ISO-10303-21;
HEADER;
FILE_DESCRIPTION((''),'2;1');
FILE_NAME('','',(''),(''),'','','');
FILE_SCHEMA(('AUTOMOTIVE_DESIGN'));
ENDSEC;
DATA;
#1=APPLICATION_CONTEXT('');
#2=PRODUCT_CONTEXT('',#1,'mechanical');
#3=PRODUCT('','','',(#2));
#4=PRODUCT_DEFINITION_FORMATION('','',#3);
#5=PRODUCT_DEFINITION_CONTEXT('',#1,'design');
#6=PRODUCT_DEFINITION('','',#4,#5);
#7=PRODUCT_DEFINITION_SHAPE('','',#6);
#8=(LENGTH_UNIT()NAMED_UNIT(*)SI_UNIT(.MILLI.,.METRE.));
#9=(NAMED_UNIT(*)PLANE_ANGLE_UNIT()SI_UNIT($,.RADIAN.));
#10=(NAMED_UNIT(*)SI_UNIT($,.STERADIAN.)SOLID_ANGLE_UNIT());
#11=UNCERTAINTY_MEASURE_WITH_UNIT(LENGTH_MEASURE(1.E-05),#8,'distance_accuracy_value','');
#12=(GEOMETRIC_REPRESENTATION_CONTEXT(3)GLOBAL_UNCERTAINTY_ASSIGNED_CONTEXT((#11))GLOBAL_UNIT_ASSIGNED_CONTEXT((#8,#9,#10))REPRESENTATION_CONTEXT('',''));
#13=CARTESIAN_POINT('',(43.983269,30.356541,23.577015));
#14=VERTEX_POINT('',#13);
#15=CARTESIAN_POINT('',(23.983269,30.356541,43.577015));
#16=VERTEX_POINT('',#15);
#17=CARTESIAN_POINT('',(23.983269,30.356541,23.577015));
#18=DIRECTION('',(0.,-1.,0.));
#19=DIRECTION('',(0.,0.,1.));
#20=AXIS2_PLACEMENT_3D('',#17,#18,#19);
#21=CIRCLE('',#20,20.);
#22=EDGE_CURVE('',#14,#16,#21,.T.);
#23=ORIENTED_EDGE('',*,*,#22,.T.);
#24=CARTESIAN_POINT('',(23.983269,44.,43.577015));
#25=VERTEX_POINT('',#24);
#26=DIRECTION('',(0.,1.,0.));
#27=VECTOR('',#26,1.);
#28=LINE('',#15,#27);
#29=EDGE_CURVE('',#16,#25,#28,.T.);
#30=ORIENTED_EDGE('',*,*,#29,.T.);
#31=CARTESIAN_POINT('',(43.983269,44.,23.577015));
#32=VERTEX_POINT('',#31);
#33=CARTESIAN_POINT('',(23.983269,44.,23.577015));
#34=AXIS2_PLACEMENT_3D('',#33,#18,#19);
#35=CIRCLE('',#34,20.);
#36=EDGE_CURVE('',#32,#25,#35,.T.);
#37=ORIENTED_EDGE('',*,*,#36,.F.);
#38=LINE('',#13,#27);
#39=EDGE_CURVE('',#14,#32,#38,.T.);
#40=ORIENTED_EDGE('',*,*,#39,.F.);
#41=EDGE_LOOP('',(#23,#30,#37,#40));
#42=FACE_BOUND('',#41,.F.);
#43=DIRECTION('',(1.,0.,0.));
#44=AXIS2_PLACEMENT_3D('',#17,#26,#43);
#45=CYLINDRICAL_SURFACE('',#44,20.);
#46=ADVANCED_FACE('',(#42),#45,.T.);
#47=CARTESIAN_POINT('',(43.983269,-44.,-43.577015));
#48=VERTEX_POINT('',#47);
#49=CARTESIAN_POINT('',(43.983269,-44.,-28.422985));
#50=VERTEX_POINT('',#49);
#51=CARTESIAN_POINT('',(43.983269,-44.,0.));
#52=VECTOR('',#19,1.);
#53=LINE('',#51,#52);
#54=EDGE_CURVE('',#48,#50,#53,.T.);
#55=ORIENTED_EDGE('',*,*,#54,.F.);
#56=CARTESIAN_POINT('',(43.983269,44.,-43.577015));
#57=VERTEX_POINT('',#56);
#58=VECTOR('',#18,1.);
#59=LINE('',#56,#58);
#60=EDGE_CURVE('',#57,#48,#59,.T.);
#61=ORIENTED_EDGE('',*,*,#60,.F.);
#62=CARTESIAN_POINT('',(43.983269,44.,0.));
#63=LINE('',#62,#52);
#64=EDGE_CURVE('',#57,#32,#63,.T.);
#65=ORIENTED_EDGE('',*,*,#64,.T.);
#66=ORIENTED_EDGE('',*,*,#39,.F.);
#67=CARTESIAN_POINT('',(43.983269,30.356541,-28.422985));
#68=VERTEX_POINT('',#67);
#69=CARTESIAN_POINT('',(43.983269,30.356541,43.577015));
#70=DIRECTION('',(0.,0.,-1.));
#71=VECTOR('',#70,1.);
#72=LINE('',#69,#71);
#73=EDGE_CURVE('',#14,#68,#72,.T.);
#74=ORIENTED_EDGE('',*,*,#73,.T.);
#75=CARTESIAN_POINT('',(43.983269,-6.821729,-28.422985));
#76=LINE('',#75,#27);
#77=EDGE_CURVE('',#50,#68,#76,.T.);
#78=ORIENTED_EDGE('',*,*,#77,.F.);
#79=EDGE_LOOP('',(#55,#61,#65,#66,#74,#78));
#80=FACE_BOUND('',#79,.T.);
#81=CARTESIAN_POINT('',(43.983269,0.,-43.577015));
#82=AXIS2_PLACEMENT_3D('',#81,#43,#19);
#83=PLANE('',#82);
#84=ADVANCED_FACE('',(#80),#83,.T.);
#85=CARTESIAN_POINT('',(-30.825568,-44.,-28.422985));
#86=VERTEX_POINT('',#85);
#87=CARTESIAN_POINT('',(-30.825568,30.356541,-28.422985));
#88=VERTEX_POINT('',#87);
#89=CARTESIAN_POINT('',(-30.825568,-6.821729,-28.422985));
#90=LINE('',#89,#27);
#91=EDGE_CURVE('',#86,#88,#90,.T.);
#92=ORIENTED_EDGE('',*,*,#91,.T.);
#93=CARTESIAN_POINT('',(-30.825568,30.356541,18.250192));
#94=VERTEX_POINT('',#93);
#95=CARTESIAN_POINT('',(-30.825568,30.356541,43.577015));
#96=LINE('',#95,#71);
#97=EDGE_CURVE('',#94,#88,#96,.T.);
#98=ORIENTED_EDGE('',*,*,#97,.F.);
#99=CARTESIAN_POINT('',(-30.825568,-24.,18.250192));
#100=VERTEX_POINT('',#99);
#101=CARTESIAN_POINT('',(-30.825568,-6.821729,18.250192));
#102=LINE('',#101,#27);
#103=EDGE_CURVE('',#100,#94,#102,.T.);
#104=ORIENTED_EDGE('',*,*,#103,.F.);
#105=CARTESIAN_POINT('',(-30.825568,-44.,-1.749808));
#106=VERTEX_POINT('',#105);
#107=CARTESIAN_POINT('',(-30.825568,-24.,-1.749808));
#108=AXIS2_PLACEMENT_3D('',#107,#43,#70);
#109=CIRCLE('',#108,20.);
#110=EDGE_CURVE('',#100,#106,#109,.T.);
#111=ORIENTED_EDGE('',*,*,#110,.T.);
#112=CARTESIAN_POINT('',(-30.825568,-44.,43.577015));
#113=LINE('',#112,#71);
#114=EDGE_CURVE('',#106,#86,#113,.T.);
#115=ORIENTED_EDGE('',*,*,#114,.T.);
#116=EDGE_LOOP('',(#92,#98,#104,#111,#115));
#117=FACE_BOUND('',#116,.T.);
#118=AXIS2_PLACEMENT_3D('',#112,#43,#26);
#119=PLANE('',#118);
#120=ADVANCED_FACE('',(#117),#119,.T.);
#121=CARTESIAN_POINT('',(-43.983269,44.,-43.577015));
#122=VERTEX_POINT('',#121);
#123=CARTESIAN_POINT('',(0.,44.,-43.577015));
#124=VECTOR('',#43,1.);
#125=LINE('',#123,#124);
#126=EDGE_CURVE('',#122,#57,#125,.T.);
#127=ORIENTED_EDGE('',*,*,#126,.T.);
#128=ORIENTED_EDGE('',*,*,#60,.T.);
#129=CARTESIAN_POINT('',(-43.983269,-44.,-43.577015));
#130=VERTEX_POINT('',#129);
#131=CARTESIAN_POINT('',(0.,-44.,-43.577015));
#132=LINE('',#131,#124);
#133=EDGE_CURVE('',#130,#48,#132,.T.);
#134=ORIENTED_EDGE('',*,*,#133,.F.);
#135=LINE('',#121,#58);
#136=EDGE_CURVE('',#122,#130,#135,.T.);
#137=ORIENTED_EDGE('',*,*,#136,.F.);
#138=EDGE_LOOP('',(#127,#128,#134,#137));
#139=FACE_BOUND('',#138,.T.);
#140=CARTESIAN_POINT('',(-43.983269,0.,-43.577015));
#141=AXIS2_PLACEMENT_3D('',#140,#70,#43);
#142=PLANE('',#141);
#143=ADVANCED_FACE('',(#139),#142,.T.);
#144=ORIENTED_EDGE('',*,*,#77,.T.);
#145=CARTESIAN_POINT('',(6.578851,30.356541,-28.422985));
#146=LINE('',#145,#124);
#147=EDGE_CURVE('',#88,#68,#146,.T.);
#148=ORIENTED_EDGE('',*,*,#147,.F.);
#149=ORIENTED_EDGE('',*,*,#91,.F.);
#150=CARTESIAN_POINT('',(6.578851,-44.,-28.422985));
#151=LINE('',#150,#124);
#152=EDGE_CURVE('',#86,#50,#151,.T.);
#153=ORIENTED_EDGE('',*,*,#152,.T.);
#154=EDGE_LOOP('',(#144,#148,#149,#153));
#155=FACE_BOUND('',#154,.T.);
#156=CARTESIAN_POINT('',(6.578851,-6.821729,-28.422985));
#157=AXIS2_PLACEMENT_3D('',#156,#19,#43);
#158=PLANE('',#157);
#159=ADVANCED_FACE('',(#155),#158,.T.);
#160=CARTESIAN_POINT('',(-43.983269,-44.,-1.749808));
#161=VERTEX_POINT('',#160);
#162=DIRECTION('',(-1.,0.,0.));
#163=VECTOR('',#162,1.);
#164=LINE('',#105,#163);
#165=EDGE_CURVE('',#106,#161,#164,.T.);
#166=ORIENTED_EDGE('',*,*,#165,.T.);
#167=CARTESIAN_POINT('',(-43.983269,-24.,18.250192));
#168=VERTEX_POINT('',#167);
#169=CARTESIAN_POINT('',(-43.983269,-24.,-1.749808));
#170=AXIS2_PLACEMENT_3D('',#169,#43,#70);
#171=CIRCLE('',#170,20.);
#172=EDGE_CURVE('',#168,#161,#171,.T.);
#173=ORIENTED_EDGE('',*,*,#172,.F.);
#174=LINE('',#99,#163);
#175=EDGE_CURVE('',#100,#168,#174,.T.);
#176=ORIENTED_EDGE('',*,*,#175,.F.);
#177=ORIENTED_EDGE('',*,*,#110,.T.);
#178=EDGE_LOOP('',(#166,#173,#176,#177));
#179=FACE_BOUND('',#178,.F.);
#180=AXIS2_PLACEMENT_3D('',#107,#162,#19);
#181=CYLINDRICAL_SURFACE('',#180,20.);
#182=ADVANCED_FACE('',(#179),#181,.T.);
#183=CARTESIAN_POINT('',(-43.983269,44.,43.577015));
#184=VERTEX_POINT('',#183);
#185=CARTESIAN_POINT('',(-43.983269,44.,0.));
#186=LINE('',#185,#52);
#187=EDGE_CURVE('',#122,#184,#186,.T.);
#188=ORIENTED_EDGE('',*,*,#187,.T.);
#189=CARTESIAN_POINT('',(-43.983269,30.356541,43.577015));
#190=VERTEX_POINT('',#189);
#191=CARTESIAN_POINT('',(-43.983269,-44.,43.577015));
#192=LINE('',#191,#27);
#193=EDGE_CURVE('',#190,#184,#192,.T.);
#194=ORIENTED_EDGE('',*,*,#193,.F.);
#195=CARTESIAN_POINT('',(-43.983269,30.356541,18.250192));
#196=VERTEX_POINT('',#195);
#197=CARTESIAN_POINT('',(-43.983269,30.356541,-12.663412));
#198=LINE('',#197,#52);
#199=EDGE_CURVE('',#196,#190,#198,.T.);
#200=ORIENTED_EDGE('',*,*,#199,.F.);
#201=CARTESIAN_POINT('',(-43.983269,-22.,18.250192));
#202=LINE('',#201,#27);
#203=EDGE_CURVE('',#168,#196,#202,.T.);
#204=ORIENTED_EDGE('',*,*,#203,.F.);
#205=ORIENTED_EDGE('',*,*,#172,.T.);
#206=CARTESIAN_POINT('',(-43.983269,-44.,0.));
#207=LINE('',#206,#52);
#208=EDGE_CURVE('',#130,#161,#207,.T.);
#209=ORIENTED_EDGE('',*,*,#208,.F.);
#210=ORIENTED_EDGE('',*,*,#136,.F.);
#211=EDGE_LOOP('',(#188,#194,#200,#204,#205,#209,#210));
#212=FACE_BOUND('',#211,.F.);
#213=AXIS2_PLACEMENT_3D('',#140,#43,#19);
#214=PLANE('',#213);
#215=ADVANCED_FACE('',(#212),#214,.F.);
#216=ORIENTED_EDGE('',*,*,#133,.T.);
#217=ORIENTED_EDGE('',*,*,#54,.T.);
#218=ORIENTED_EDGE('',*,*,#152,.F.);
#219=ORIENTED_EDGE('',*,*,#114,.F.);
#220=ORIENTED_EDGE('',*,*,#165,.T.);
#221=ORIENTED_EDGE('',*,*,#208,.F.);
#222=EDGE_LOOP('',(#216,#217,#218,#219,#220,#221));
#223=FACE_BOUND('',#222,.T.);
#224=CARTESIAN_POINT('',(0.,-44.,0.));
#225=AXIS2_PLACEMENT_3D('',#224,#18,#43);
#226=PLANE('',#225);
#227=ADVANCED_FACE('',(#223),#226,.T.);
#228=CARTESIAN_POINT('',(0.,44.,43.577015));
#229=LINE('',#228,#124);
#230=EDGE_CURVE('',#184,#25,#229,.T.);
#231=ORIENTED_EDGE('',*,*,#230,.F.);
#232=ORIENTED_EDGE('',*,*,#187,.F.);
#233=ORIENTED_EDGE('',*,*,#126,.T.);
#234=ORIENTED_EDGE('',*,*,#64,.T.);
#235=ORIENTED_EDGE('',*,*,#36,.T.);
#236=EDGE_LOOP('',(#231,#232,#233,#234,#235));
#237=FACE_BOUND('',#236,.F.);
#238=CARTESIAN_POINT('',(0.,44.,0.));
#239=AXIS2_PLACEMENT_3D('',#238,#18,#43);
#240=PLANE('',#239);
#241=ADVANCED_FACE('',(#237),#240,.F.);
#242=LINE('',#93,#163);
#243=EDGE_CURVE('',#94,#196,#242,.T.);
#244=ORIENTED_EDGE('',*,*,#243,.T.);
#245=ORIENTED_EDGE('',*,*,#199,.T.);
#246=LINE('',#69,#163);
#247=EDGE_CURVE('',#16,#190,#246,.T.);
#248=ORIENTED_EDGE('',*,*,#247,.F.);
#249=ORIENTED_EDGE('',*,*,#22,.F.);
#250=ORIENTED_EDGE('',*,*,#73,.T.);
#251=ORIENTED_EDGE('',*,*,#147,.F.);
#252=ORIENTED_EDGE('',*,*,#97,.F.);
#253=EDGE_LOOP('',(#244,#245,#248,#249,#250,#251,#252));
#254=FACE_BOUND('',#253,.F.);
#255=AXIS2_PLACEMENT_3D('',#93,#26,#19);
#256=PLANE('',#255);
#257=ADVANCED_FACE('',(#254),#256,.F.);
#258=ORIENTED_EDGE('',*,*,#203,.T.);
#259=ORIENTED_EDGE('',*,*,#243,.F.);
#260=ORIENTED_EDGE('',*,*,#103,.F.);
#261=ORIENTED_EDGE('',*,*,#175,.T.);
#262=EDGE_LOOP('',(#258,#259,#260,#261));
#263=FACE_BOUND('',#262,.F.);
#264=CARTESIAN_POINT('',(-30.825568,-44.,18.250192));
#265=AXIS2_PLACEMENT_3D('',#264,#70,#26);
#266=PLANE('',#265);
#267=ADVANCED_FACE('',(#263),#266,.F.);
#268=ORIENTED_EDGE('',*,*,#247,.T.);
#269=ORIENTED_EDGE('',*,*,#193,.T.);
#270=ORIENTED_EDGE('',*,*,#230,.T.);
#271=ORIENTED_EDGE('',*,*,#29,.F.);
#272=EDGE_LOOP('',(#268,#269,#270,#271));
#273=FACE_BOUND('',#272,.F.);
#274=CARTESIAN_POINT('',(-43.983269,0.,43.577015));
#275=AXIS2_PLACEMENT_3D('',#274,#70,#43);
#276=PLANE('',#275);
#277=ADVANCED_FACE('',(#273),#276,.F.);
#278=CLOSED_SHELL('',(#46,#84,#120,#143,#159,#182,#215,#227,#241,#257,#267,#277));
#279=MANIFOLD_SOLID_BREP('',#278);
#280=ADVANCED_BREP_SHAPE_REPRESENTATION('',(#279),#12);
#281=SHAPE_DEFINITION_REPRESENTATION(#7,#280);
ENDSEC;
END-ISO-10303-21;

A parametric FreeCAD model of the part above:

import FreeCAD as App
import Part
import Sketcher

V = App.Vector


def edges_at(feature, points):
    """Names of the edges that pass closest to the given points."""
    edges = feature.Shape.Edges
    near = lambda p: min(range(len(edges)), key=lambda i: edges[i].distToShape(Part.Vertex(*p))[0])
    return sorted({f"Edge{near(p) + 1}" for p in points})

doc = App.newDocument("Part")
body = doc.addObject("PartDesign::Body", "Body")

# Sketch on XZ plane
sketch1 = doc.addObject("Sketcher::SketchObject", "Sketch")
body.addObject(sketch1)
sketch1.AttachmentSupport = (doc.XZ_Plane, [""])
sketch1.MapMode = "FlatFace"
sketch1.addGeometry([
    Part.LineSegment(V(-44, 44, 0), V(-44, -44, 0)),
    Part.LineSegment(V(-44, -44, 0), V(44, -44, 0)),
    Part.LineSegment(V(44, -44, 0), V(44, 44, 0)),
    Part.LineSegment(V(44, 44, 0), V(-44, 44, 0)),
], False)
sketch1.addConstraint([
    Sketcher.Constraint("Coincident", 0, 2, 1, 1),
    Sketcher.Constraint("Coincident", 1, 2, 2, 1),
    Sketcher.Constraint("Coincident", 2, 2, 3, 1),
    Sketcher.Constraint("Coincident", 3, 2, 0, 1),
    Sketcher.Constraint("Vertical", 0),
    Sketcher.Constraint("Horizontal", 1),
    Sketcher.Constraint("Vertical", 2),
    Sketcher.Constraint("Horizontal", 3),
    Sketcher.Constraint("Symmetric", 0, 2, 2, 2, -1, 1),
    Sketcher.Constraint("DistanceX", 1, 1, 1, 2, 87.966539),
    Sketcher.Constraint("DistanceY", 0, 2, 0, 1, 87.154031),
])
pad1 = doc.addObject("PartDesign::Pad", "Pad")
body.addObject(pad1)
pad1.Profile = sketch1
pad1.Length = 88
pad1.Midplane = True

# Sketch on XY plane
sketch2 = doc.addObject("Sketcher::SketchObject", "Sketch001")
body.addObject(sketch2)
sketch2.AttachmentSupport = (doc.XY_Plane, [""])
sketch2.MapMode = "FlatFace"
sketch2.AttachmentOffset = App.Placement(V(0, 0, 43.577015), App.Rotation())
sketch2.addGeometry([
    Part.LineSegment(V(-31, 30, 0), V(-31, -44, 0)),
    Part.LineSegment(V(-31, -44, 0), V(44, -44, 0)),
    Part.LineSegment(V(44, -44, 0), V(44, 30, 0)),
    Part.LineSegment(V(44, 30, 0), V(-31, 30, 0)),
], False)
sketch2.addConstraint([
    Sketcher.Constraint("Coincident", 0, 2, 1, 1),
    Sketcher.Constraint("Coincident", 1, 2, 2, 1),
    Sketcher.Constraint("Coincident", 2, 2, 3, 1),
    Sketcher.Constraint("Coincident", 3, 2, 0, 1),
    Sketcher.Constraint("Vertical", 0),
    Sketcher.Constraint("Horizontal", 1),
    Sketcher.Constraint("Vertical", 2),
    Sketcher.Constraint("Horizontal", 3),
    Sketcher.Constraint("DistanceY", 0, 2, -1, 1, 44.0),
    Sketcher.Constraint("DistanceY", 0, 2, 0, 1, 74.356541),
    Sketcher.Constraint("DistanceX", 1, 1, 1, 2, 74.808838),
    Sketcher.Constraint("DistanceX", 0, 2, -1, 1, 30.825568),
])
pocket1 = doc.addObject("PartDesign::Pocket", "Pocket")
body.addObject(pocket1)
pocket1.Profile = sketch2
pocket1.Length = 72

# Sketch on YZ plane
sketch3 = doc.addObject("Sketcher::SketchObject", "Sketch002")
body.addObject(sketch3)
sketch3.AttachmentSupport = (doc.YZ_Plane, [""])
sketch3.MapMode = "FlatFace"
sketch3.AttachmentOffset = App.Placement(V(0, 0, -30.825568), App.Rotation())
sketch3.addGeometry([
    Part.LineSegment(V(-44, 44, 0), V(-44, 18, 0)),
    Part.LineSegment(V(-44, 18, 0), V(30, 18, 0)),
    Part.LineSegment(V(30, 18, 0), V(30, 44, 0)),
    Part.LineSegment(V(30, 44, 0), V(-44, 44, 0)),
], False)
sketch3.addConstraint([
    Sketcher.Constraint("Coincident", 0, 2, 1, 1),
    Sketcher.Constraint("Coincident", 1, 2, 2, 1),
    Sketcher.Constraint("Coincident", 2, 2, 3, 1),
    Sketcher.Constraint("Coincident", 3, 2, 0, 1),
    Sketcher.Constraint("Vertical", 0),
    Sketcher.Constraint("Horizontal", 1),
    Sketcher.Constraint("Vertical", 2),
    Sketcher.Constraint("Horizontal", 3),
    Sketcher.Constraint("DistanceX", 0, 2, -1, 1, 44.0),
    Sketcher.Constraint("DistanceX", 1, 1, 1, 2, 74.356541),
    Sketcher.Constraint("DistanceY", 0, 2, 0, 1, 25.326824),
    Sketcher.Constraint("DistanceY", -1, 1, 0, 2, 18.250192),
])
pocket2 = doc.addObject("PartDesign::Pocket", "Pocket001")
body.addObject(pocket2)
pocket2.Profile = sketch3
pocket2.Type = "ThroughAll"
doc.recompute()

fillet = doc.addObject("PartDesign::Fillet", "Fillet")
body.addObject(fillet)
fillet.Base = (pocket2, edges_at(pocket2, [(43.983, 37.178, 43.577), (-37.404, -44, 18.25)]))
fillet.Radius = 20

doc.recompute()
